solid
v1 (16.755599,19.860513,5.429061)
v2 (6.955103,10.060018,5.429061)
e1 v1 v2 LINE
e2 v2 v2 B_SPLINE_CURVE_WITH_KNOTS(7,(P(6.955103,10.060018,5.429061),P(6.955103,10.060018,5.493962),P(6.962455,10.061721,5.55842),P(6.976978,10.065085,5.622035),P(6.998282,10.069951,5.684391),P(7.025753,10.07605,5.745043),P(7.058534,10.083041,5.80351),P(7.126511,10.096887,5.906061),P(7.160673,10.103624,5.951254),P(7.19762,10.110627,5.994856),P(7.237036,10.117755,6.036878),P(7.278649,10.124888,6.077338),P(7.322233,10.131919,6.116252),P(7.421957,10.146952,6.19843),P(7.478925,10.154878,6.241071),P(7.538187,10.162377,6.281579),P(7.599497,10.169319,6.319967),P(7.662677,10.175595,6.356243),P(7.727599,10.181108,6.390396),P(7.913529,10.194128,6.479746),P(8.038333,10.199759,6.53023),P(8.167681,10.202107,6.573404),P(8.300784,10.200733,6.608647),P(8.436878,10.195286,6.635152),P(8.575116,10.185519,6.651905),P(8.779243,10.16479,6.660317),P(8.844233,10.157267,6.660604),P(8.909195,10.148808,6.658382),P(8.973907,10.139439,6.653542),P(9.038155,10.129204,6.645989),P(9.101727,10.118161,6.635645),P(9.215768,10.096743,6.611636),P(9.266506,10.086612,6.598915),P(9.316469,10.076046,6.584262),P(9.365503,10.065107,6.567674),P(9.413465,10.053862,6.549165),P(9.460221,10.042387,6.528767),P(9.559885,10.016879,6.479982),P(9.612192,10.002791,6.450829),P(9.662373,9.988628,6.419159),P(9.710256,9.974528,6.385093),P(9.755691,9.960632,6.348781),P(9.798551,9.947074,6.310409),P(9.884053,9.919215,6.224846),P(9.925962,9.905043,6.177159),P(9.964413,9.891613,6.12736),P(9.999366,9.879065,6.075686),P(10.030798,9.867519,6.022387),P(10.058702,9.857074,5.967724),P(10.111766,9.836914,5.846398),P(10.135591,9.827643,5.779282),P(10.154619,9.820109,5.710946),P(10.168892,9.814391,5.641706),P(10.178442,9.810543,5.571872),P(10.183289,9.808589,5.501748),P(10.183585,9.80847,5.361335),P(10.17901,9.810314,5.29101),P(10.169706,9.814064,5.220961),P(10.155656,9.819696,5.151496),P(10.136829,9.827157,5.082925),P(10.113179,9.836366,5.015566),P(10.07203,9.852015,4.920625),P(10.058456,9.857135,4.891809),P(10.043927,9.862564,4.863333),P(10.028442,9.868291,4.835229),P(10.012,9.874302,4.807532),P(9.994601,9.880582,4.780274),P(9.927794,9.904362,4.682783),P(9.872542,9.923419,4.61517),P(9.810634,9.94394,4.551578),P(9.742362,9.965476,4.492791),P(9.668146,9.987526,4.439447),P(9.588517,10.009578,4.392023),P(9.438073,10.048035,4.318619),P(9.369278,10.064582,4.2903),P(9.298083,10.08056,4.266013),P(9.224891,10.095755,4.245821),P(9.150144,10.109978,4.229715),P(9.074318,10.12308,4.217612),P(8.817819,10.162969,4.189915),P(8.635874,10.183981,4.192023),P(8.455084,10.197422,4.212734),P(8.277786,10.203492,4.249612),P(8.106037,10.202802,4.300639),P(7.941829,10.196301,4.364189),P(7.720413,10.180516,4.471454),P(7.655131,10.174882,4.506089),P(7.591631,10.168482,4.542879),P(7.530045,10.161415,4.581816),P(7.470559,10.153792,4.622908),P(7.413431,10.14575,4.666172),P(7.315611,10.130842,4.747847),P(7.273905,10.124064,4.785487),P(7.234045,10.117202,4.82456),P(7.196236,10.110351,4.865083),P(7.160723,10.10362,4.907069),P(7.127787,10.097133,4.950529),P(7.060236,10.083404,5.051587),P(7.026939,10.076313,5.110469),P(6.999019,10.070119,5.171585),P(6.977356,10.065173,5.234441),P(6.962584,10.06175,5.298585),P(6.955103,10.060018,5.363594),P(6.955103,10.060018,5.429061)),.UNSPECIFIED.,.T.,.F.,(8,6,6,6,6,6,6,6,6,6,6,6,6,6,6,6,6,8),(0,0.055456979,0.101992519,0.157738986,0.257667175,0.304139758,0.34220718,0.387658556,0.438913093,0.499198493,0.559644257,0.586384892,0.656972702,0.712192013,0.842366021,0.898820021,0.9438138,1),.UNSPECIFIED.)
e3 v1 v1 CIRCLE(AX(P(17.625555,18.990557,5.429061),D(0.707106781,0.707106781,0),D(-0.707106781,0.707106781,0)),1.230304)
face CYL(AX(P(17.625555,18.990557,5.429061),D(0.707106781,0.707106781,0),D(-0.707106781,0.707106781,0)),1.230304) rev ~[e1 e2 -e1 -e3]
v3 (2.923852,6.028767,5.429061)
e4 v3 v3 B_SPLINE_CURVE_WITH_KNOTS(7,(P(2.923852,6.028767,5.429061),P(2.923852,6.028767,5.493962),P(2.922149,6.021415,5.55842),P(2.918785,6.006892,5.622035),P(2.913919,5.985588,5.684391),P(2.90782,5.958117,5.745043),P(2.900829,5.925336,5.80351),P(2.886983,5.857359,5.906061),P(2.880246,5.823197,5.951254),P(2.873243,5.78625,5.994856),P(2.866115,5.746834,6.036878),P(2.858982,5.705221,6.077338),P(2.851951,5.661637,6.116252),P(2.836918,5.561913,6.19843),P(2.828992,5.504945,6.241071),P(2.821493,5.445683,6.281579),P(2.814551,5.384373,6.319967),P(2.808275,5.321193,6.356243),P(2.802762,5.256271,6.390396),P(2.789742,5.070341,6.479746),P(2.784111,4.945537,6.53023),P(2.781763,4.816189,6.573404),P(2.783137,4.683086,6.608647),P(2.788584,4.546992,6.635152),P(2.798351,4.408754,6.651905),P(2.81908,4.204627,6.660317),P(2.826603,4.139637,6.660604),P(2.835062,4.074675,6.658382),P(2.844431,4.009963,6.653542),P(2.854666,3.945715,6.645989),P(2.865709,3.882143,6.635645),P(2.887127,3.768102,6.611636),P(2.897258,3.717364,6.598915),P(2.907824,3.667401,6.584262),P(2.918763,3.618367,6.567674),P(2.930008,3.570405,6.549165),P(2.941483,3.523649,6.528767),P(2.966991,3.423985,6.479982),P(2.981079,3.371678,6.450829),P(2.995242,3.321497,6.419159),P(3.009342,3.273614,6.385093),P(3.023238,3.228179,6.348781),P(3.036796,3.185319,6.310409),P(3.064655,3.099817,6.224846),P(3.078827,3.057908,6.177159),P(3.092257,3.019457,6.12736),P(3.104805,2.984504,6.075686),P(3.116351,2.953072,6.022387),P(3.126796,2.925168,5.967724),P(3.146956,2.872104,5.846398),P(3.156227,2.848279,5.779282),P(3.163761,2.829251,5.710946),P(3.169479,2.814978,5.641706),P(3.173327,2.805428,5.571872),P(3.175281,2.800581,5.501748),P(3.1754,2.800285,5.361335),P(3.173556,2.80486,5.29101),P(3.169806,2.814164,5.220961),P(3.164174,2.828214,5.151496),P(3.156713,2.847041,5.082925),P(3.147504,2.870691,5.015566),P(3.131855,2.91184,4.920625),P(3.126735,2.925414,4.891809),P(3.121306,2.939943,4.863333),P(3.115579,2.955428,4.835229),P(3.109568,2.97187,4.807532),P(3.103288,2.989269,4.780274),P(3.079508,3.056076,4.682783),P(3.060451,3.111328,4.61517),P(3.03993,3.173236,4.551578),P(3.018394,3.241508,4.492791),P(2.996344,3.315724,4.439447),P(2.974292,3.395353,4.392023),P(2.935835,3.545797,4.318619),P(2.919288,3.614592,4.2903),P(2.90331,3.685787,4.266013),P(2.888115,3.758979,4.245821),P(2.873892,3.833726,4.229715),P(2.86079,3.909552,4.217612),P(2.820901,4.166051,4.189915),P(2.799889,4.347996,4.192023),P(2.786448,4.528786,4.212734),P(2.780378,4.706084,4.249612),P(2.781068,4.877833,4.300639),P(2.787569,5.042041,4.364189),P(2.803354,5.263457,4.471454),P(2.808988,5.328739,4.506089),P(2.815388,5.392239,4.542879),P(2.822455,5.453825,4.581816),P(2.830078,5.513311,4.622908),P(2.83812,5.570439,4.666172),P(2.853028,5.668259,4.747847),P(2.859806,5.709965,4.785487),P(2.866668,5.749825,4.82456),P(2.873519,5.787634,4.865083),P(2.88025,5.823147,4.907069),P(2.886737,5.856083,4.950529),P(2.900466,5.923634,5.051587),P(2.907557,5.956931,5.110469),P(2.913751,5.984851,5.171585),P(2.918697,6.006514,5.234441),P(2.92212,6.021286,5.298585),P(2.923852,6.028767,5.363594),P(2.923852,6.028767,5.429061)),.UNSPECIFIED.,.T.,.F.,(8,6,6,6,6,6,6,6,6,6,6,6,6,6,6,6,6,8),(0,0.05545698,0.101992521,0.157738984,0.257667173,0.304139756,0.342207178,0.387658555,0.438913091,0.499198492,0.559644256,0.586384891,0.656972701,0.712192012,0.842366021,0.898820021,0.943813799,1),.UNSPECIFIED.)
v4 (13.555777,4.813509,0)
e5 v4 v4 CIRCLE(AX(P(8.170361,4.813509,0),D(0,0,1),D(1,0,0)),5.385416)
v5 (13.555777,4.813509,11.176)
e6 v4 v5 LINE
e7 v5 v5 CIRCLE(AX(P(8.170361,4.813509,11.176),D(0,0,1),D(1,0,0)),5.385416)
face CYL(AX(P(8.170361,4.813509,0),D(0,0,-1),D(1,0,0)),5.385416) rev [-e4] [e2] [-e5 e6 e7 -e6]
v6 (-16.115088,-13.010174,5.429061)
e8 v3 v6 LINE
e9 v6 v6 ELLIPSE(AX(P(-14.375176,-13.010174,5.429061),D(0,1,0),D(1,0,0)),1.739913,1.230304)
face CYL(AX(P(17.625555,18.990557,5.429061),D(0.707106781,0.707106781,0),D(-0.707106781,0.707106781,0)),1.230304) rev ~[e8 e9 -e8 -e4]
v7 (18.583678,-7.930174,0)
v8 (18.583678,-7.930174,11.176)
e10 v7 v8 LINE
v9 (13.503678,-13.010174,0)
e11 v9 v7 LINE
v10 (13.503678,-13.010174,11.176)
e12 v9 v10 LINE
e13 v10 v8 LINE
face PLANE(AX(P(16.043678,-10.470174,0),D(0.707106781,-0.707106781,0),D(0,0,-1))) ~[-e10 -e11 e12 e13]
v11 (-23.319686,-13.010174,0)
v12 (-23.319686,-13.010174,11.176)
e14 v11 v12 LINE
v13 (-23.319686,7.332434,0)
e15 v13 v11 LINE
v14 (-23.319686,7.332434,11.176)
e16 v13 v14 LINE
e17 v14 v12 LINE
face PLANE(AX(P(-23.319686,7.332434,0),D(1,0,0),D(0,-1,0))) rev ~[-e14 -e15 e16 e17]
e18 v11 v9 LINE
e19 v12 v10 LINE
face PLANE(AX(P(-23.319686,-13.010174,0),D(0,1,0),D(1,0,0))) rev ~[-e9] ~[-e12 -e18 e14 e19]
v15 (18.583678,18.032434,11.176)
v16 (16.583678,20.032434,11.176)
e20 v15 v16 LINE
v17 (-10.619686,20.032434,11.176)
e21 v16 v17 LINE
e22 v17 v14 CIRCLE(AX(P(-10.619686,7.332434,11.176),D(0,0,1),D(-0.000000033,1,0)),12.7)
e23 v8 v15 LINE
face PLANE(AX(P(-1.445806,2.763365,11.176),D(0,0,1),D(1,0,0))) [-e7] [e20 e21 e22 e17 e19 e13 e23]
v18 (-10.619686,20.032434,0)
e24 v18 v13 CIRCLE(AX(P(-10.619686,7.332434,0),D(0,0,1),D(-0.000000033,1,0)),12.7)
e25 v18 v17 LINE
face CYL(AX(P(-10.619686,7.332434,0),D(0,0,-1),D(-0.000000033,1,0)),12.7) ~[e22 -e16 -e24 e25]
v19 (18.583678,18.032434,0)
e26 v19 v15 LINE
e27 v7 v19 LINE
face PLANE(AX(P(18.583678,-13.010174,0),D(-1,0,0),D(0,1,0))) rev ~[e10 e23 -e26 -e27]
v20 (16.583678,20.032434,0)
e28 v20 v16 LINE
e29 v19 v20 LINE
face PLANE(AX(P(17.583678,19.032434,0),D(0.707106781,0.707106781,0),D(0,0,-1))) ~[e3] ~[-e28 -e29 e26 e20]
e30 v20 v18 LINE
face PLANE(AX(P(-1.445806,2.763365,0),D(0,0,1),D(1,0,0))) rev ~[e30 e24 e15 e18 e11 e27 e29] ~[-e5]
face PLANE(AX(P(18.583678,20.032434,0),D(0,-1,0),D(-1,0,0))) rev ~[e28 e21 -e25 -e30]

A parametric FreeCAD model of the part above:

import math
import FreeCAD as App
import Part
import Sketcher
Q = App.Units.Quantity


def edges_at(feature, points):
    """Names of the edges that pass closest to the given points."""
    edges = feature.Shape.Edges
    near = lambda p: min(range(len(edges)), key=lambda i: edges[i].distToShape(Part.Vertex(*p))[0])
    return sorted({f"Edge{near(p) + 1}" for p in points})

doc = App.newDocument("Part")
body = doc.addObject("PartDesign::Body", "Body")

# Sketch on XY plane
sketch1 = doc.addObject("Sketcher::SketchObject", "Sketch")
body.addObject(sketch1)
sketch1.AttachmentSupport = (doc.XY_Plane, [""])
sketch1.MapMode = "FlatFace"
sketch1.addGeometry([
    Part.LineSegment(App.Vector(-23, 7, 0), App.Vector(-23, -13, 0)),  # 0
    Part.LineSegment(App.Vector(-23, -13, 0), App.Vector(19, -13, 0)),  # 1
    Part.LineSegment(App.Vector(19, -13, 0), App.Vector(19, 20, 0)),  # 2
    Part.LineSegment(App.Vector(19, 20, 0), App.Vector(-11, 20, 0)),  # 3
    Part.ArcOfCircle(Part.Circle(App.Vector(-11, 7, 0), App.Vector(0, 0, 1), 13), math.radians(90), math.radians(180)),  # 4
    Part.Circle(App.Vector(8, 5, 0), App.Vector(0, 0, 1), 5),  # 5
], False)
sketch1.addConstraint([
    Sketcher.Constraint("Coincident", 0, 2, 1, 1),
    Sketcher.Constraint("Coincident", 1, 2, 2, 1),
    Sketcher.Constraint("Coincident", 2, 2, 3, 1),
    Sketcher.Constraint("Tangent", 3, 2, 4, 1),
    Sketcher.Constraint("Tangent", 4, 2, 0, 1),
    Sketcher.Constraint("Vertical", 0),
    Sketcher.Constraint("Horizontal", 1),
    Sketcher.Constraint("Vertical", 2),
    Sketcher.Constraint("Horizontal", 3),
    Sketcher.Constraint("Radius", 4, Q("0.5 in")),
    Sketcher.Constraint("Diameter", 5, Q("10.770832 mm")),
    Sketcher.Constraint("DistanceX", 1, 1, 1, 2, Q("41.903364 mm")),
    Sketcher.Constraint("DistanceY", 0, 2, 0, 1, Q("20.342608 mm")),
    Sketcher.Constraint("DistanceX", -1, 1, 5, 3, Q("8.170361 mm")),
    Sketcher.Constraint("DistanceY", -1, 1, 5, 3, Q("4.813509 mm")),
    Sketcher.Constraint("DistanceX", 4, 3, -1, 1, Q("10.619686 mm")),
    Sketcher.Constraint("DistanceY", -1, 1, 4, 3, Q("7.332434 mm")),
])
pad1 = doc.addObject("PartDesign::Pad", "Pad")
body.addObject(pad1)
pad1.Profile = sketch1
pad1.Length = Q("0.44 in")
doc.recompute()

chamfer = doc.addObject("PartDesign::Chamfer", "Chamfer")
body.addObject(chamfer)
chamfer.Base = (pad1, edges_at(pad1, [(18.584, -13.01, 5.588)]))
chamfer.Size = Q("0.2 in")
doc.recompute()

chamfer2 = doc.addObject("PartDesign::Chamfer", "Chamfer001")
body.addObject(chamfer2)
chamfer2.Base = (chamfer, edges_at(chamfer, [(18.584, 20.032, 5.588)]))
chamfer2.Size = 2

# Sketch on an angled plane
sketch2 = doc.addObject("Sketcher::SketchObject", "Sketch001")
body.addObject(sketch2)
sketch2.Placement = App.Placement(App.Vector(18.308056, 18.308056, 0), App.Rotation(App.Vector(-0.707106781, 0.707106781, 0), App.Vector(0, 0, 0.999999999), App.Vector(0.707106781, 0.707106781, 0), "ZXY"))
sketch2.addGeometry(Part.Circle(App.Vector(1, 5.4, 0), App.Vector(0, 0, 1), 1.2), False)
sketch2.addConstraint([
    Sketcher.Constraint("Diameter", 0, Q("2.460608 mm")),
    Sketcher.Constraint("DistanceX", -1, 1, 0, 3, Q("0.0380001 in")),
    Sketcher.Constraint("DistanceY", -1, 1, 0, 3, Q("5.429061 mm")),
])
pocket1 = doc.addObject("PartDesign::Pocket", "Pocket")
body.addObject(pocket1)
pocket1.Profile = sketch2
pocket1.Length = Q("2.54 in")

doc.recompute()
